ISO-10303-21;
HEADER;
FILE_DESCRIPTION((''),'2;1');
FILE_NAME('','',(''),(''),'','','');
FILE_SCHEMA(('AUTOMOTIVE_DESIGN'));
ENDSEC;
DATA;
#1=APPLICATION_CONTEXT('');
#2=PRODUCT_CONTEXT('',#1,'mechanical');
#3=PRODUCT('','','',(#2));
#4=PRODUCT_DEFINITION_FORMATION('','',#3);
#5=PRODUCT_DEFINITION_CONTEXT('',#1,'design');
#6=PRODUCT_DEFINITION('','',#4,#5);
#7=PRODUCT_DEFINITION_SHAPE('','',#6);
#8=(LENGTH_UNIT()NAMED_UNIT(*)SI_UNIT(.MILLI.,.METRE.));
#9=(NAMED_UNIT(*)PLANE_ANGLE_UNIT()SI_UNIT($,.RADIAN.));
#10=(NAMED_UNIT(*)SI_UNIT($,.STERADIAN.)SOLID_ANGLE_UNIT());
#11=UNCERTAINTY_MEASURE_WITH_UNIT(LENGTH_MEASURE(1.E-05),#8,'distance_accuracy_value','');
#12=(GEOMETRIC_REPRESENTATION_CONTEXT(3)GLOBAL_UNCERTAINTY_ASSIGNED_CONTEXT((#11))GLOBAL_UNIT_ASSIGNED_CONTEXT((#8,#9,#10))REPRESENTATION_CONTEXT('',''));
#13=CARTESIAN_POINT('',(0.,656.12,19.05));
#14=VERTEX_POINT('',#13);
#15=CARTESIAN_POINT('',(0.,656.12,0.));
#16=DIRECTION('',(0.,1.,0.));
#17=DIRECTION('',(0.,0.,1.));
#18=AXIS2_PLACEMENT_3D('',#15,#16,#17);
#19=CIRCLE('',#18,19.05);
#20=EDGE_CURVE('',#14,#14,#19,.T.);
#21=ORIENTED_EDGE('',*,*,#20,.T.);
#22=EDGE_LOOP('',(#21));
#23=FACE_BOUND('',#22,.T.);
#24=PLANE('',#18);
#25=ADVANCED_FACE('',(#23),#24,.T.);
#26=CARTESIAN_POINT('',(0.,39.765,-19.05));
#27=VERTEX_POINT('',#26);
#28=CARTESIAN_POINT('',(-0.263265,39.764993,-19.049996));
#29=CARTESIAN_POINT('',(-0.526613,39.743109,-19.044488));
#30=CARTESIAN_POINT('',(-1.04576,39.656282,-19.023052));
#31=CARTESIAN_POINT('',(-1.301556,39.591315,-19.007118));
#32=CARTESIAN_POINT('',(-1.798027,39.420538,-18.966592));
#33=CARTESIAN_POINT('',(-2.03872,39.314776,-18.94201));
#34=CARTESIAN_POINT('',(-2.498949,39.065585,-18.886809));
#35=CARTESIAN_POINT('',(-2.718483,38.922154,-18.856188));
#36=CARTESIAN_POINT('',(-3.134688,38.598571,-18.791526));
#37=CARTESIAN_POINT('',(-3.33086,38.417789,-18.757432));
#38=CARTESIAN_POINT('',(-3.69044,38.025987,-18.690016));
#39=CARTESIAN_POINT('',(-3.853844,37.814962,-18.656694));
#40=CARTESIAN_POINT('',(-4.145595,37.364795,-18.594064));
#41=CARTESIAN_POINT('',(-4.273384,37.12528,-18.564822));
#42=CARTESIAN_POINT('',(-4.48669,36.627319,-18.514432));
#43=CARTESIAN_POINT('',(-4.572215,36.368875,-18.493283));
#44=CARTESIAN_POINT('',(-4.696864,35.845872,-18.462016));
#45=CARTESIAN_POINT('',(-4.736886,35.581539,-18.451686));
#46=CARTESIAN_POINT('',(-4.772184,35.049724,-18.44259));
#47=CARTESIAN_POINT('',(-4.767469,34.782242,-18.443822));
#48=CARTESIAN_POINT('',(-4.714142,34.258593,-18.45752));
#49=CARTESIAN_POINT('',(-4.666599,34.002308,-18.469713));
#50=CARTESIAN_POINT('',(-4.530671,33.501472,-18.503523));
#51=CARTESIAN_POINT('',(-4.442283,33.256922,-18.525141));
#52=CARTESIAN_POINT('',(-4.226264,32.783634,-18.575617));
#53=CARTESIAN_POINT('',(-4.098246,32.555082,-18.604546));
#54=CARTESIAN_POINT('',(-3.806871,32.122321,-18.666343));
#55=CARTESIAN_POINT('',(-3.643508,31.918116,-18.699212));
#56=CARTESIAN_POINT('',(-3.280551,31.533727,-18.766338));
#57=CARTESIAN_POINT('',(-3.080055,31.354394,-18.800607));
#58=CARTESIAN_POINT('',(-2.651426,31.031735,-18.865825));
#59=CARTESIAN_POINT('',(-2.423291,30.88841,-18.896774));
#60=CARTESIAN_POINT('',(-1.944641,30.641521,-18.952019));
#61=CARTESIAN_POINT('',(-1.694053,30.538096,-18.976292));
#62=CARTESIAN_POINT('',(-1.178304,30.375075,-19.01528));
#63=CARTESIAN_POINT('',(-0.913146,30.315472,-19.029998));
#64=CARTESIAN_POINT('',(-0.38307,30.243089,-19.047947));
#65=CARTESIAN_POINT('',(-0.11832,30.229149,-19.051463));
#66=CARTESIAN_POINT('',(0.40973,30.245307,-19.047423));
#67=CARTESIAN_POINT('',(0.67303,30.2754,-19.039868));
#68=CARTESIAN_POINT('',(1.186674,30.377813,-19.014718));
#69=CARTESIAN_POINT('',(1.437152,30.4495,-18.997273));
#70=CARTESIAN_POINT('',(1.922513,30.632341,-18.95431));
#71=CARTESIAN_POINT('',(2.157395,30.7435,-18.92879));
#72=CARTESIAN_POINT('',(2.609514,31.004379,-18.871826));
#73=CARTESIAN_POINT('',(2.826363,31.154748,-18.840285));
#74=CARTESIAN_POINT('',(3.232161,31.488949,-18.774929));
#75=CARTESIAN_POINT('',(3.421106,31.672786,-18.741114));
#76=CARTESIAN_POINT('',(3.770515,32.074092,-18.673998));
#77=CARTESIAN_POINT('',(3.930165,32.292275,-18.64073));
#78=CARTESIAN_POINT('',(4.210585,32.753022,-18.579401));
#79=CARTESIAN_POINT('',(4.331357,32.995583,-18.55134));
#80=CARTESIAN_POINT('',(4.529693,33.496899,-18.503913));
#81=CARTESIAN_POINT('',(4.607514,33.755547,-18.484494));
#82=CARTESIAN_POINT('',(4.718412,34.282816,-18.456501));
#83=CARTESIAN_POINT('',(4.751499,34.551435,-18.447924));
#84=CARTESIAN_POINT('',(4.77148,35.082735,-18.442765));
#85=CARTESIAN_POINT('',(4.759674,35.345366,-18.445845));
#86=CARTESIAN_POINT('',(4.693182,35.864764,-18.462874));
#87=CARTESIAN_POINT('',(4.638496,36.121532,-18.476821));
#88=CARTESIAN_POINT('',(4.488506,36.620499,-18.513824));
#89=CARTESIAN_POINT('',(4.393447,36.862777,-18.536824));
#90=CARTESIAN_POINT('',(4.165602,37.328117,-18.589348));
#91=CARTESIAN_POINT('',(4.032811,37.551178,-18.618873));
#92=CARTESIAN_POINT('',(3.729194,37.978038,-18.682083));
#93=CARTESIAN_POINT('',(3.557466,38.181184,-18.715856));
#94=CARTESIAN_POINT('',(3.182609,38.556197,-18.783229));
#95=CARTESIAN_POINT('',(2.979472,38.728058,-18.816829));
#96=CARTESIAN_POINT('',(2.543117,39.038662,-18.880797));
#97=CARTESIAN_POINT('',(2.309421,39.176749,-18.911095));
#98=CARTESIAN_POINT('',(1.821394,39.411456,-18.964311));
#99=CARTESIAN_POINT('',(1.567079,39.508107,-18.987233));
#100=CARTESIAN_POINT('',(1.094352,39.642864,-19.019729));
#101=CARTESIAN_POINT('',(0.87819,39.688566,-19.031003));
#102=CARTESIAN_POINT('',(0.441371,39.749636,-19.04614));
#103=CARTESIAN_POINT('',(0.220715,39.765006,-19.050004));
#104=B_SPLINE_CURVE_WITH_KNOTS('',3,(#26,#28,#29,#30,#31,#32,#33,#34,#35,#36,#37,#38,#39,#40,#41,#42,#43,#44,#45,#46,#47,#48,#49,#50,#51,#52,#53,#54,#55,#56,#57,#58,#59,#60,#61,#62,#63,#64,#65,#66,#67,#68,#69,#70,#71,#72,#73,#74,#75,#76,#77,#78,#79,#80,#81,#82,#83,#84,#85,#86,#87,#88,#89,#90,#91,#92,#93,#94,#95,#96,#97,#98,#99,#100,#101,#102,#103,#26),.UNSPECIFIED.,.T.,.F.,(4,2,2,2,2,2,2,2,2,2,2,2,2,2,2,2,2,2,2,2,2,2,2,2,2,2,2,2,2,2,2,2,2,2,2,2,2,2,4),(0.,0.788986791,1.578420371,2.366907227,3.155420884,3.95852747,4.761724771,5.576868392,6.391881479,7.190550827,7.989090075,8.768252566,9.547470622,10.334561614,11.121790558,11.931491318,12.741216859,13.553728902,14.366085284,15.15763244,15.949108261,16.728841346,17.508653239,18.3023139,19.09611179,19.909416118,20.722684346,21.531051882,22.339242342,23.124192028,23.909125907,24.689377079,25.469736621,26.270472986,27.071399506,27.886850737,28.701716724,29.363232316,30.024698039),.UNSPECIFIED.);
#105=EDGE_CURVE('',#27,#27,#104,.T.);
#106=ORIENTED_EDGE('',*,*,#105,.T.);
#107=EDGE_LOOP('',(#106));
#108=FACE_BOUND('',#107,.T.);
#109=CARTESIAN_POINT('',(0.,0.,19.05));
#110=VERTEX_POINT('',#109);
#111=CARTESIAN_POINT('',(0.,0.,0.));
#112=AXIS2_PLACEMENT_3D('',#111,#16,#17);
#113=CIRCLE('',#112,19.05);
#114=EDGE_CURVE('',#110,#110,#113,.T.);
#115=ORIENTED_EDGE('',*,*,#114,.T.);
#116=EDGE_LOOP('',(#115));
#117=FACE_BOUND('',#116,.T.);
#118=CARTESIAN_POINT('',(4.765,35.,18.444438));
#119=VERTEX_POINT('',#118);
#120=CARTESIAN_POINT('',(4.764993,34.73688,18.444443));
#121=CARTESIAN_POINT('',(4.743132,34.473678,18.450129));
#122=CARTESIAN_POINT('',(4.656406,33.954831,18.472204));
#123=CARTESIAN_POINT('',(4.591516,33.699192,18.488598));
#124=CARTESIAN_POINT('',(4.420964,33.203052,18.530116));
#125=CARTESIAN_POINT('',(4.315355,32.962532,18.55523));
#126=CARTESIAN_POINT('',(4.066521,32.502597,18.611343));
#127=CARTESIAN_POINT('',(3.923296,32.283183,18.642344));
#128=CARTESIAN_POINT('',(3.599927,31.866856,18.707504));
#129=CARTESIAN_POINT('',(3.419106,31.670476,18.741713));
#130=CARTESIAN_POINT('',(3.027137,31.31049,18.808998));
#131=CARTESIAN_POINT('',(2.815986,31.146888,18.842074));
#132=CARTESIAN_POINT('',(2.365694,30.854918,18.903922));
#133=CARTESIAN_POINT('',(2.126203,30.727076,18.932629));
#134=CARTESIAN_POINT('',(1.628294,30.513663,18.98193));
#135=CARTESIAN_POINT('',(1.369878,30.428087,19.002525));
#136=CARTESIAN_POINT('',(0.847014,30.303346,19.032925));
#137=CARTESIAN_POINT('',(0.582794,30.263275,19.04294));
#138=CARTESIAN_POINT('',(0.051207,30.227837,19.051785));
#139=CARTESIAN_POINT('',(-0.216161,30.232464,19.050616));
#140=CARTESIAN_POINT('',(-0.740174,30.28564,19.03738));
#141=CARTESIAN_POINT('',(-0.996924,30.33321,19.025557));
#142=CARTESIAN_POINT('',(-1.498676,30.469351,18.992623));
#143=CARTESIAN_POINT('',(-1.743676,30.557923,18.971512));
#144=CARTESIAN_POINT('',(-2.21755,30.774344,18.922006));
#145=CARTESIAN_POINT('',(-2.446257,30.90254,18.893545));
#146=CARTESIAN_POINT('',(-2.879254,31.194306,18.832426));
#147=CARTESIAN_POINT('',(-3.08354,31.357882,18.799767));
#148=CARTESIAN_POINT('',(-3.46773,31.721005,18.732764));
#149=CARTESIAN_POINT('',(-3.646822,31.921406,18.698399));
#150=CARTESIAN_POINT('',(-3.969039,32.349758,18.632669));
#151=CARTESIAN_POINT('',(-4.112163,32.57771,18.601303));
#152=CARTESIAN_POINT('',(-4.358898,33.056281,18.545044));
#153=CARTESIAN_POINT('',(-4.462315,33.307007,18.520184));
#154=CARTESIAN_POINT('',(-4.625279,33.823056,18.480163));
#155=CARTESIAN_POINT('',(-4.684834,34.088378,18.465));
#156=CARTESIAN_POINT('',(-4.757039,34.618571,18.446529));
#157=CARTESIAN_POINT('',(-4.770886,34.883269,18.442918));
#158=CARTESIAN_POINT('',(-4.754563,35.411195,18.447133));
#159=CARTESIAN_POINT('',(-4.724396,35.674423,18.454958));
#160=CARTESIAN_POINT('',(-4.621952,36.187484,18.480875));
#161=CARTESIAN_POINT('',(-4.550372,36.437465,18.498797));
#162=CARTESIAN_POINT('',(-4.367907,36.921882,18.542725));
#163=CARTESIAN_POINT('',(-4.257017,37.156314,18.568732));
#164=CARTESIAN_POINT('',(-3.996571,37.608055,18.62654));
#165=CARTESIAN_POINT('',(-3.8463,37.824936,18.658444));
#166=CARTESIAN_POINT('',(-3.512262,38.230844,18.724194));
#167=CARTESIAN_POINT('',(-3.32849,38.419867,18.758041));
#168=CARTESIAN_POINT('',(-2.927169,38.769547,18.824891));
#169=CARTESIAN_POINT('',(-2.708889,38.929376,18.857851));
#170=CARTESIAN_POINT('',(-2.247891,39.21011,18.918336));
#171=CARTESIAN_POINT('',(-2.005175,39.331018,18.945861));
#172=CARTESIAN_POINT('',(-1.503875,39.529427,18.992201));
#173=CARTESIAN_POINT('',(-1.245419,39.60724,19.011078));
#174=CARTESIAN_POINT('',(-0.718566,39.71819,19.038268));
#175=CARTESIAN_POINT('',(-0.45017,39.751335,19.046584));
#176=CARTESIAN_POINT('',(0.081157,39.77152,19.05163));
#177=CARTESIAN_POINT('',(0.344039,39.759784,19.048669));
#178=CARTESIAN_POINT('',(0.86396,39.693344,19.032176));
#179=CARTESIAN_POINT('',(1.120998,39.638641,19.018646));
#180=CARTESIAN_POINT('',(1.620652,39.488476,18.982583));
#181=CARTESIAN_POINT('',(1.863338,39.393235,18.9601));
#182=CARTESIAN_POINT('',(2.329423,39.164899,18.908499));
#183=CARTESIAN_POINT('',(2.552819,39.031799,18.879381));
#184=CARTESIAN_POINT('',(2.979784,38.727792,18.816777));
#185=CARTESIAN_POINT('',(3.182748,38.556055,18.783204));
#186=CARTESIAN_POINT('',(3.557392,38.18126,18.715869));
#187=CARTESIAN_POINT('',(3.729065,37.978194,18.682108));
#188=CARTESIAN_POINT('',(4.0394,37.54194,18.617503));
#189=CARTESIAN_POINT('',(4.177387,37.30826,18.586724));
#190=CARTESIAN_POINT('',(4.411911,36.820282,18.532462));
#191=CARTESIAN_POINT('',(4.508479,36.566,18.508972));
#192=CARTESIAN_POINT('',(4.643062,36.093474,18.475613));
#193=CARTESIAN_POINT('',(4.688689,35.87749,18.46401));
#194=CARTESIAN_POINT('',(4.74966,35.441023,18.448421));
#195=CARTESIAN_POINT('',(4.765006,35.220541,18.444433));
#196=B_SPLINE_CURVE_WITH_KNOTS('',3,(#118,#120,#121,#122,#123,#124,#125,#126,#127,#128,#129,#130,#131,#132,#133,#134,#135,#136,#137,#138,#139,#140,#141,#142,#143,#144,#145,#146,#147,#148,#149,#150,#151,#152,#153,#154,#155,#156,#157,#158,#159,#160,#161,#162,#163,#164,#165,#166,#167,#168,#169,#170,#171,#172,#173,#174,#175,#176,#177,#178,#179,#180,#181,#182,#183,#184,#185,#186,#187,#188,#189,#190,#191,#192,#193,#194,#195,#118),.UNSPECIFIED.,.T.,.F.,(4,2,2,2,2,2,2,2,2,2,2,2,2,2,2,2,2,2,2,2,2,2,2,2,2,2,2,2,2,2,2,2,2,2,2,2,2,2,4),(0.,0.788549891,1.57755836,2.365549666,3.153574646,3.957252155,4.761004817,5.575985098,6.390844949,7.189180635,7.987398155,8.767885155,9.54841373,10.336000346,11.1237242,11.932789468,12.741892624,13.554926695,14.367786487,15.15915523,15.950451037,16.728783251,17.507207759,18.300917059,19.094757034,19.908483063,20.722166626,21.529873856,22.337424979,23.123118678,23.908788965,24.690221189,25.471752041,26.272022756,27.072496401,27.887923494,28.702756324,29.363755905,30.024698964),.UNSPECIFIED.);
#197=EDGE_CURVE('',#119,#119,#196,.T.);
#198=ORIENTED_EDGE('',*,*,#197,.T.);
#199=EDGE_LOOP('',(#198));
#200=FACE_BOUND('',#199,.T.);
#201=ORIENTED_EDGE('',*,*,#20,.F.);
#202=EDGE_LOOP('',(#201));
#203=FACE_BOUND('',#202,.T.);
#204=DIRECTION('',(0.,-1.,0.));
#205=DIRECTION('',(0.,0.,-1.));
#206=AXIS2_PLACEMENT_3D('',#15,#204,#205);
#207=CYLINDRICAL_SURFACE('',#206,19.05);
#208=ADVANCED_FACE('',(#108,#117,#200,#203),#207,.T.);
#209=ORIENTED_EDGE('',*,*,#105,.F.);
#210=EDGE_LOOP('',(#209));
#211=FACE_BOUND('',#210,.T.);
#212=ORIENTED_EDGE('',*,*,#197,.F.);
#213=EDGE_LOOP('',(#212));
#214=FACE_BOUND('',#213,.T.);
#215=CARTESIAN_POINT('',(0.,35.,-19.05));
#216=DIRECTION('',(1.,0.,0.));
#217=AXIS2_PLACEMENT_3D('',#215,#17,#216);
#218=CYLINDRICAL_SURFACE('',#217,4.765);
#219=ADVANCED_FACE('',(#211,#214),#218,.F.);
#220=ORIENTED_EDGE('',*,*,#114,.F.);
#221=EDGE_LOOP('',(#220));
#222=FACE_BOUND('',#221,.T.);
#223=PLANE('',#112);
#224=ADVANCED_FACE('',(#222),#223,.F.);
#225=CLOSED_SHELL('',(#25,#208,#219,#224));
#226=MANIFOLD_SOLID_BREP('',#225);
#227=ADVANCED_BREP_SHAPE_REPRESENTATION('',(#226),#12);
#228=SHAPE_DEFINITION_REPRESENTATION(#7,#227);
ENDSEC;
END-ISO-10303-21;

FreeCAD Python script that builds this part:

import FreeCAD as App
import Part
import Sketcher
from FreeCAD import Vector
Q = App.Units.Quantity

doc = App.newDocument("Part")
body = doc.addObject("PartDesign::Body", "Body")

# Sketch on XZ plane
sketch1 = body.newObject("Sketcher::SketchObject", "Sketch")
sketch1.AttachmentSupport = (doc.getObject("XZ_Plane"), [""])
sketch1.MapMode = "FlatFace"
sketch1.addGeometry(Part.Circle(Vector(0, 0, 0), Vector(0, 0, 1), 19.05), False)
sketch1.addConstraint([
    Sketcher.Constraint("Coincident", 0, 3, -1, 1),
    Sketcher.Constraint("Diameter", 0, Q("1.5 in")),
])
pad1 = body.newObject("PartDesign::Pad", "Pad")
pad1.Profile = sketch1
pad1.Length = 656.12
pad1.Reversed = True

# Sketch on XY plane
sketch2 = body.newObject("Sketcher::SketchObject", "Sketch001")
sketch2.AttachmentSupport = (doc.getObject("XY_Plane"), [""])
sketch2.MapMode = "FlatFace"
sketch2.addGeometry(Part.Circle(Vector(0, 35, 0), Vector(0, 0, 1), 4.765), False)
sketch2.addConstraint([
    Sketcher.Constraint("PointOnObject", 0, 3, -2),
    Sketcher.Constraint("Diameter", 0, 9.53),
    Sketcher.Constraint("DistanceY", -1, 1, 0, 3, 35.0),
])
pocket1 = body.newObject("PartDesign::Pocket", "Pocket")
pocket1.Profile = sketch2
pocket1.Type = "ThroughAll"
pocket1.Midplane = True

doc.recompute()
